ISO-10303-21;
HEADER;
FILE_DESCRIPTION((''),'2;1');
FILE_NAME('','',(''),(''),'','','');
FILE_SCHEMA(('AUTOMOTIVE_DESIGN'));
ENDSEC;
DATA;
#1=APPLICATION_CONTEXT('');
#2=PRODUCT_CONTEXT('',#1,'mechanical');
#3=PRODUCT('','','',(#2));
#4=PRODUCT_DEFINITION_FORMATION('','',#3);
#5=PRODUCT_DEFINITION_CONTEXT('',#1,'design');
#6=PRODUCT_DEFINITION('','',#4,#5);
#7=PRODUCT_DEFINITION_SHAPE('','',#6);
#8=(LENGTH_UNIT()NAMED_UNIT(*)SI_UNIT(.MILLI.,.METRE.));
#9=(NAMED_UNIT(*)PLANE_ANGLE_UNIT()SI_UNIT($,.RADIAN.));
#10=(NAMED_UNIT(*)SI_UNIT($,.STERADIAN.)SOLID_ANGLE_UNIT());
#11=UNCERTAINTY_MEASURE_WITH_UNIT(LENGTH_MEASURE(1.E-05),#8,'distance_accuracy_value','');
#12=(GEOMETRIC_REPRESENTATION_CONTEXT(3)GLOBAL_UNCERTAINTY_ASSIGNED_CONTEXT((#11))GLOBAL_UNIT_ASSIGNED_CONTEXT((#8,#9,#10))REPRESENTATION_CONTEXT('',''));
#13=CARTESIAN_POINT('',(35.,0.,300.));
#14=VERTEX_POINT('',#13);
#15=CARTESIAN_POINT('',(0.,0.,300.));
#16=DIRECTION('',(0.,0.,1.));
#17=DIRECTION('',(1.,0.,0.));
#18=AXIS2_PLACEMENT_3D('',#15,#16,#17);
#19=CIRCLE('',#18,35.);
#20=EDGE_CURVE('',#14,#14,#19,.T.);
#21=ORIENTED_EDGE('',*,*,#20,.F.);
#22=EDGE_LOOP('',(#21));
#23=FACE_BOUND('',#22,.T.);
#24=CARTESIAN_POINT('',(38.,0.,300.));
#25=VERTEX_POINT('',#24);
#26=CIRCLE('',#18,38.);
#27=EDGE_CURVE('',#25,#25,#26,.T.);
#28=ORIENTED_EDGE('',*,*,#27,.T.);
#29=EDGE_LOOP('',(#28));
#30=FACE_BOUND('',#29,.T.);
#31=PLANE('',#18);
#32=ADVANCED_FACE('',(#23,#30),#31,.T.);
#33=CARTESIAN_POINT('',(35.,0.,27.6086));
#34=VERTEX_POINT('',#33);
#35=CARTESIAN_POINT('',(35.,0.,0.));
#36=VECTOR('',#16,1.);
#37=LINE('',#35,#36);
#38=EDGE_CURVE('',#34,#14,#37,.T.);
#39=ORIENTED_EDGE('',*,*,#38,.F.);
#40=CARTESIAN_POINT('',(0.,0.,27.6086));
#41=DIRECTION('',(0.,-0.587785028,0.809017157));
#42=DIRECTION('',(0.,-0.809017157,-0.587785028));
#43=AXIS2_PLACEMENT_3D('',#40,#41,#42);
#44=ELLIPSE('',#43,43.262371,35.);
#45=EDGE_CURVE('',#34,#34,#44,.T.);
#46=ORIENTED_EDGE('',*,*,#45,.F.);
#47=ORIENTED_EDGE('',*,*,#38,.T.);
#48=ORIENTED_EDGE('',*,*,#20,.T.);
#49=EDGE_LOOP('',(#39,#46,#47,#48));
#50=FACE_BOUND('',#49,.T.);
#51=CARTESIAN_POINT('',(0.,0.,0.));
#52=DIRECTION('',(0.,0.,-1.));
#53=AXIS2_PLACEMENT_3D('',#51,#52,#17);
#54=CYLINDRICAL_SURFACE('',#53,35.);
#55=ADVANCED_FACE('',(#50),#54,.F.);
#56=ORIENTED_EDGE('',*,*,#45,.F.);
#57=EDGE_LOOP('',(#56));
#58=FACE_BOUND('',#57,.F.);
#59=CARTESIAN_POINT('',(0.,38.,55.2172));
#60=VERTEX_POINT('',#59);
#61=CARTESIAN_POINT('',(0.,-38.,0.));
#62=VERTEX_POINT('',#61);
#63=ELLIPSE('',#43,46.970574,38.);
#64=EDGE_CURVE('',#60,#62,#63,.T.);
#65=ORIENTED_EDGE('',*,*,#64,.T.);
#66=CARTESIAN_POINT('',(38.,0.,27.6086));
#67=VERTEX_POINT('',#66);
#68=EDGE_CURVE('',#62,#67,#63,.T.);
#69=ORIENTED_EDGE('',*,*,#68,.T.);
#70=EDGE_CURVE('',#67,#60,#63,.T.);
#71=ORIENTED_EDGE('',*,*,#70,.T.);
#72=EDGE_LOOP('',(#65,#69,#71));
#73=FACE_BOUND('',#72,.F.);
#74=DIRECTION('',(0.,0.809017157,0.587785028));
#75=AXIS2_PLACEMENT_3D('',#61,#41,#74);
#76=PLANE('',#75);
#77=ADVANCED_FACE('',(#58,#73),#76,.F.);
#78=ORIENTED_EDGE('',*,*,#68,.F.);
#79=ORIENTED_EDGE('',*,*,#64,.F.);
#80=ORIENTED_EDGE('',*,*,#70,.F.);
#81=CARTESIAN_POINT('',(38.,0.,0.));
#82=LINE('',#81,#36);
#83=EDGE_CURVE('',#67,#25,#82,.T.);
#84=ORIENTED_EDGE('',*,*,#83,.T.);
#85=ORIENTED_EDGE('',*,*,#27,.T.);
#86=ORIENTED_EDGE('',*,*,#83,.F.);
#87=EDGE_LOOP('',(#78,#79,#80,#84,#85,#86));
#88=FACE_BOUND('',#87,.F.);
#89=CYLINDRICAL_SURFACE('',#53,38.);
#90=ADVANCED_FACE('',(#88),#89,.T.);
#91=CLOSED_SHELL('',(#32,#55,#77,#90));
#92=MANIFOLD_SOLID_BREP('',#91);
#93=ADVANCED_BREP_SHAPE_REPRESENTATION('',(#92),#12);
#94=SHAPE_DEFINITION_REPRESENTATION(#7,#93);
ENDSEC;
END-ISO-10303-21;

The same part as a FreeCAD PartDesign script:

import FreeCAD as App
import Part
import Sketcher
Q = App.Units.Quantity

doc = App.newDocument("Part")
params = doc.addObject("Spreadsheet::Sheet", "Params")
for row, (alias, value) in enumerate([
    ("sketch1_diameter", "76 mm"),
    ("sketch1_diameter2", "70 mm"),
    ("pad1_length", "300 mm"),
    ("sketch2_width", "76 mm"),
    ("pocket1_length", "300 mm"),
], start=1):
    params.set(f"A{row}", alias)
    params.set(f"B{row}", "=" + value)
    params.setAlias(f"B{row}", alias)

body = doc.addObject("PartDesign::Body", "Body")

# Sketch on XY plane
sketch1 = body.newObject("Sketcher::SketchObject", "Sketch")
sketch1.AttachmentSupport = (doc.getObject("XY_Plane"), [""])
sketch1.MapMode = "FlatFace"
sketch1.addGeometry(Part.Circle(App.Vector(0, 0, 0), App.Vector(0, 0, 1), 38), False)
sketch1.addGeometry(Part.Circle(App.Vector(0, 0, 0), App.Vector(0, 0, 1), 35), False)
sketch1.addConstraint(Sketcher.Constraint("Coincident", 0, 3, -1, 1))
sketch1.addConstraint(Sketcher.Constraint("Coincident", 1, 3, -1, 1))
sketch1.addConstraint(Sketcher.Constraint("Diameter", 0, Q("76 mm")))
sketch1.addConstraint(Sketcher.Constraint("Diameter", 1, Q("70 mm")))
sketch1.setExpression("Constraints[2]", "Params.sketch1_diameter")
sketch1.setExpression("Constraints[3]", "Params.sketch1_diameter2")
pad1 = body.newObject("PartDesign::Pad", "Pad")
pad1.Profile = sketch1
pad1.setExpression("Length", "Params.pad1_length")

# Sketch on YZ plane
sketch2 = body.newObject("Sketcher::SketchObject", "Sketch001")
sketch2.AttachmentSupport = (doc.getObject("YZ_Plane"), [""])
sketch2.MapMode = "FlatFace"
sketch2.addGeometry(Part.LineSegment(App.Vector(-38, 0, 0), App.Vector(38, 0, 0)), False)
sketch2.addGeometry(Part.LineSegment(App.Vector(38, 0, 0), App.Vector(38, 55, 0)), False)
sketch2.addGeometry(Part.LineSegment(App.Vector(38, 55, 0), App.Vector(-38, 0, 0)), False)
sketch2.addConstraint(Sketcher.Constraint("Coincident", 0, 2, 1, 1))
sketch2.addConstraint(Sketcher.Constraint("Coincident", 1, 2, 2, 1))
sketch2.addConstraint(Sketcher.Constraint("Coincident", 2, 2, 0, 1))
sketch2.addConstraint(Sketcher.Constraint("Horizontal", 0))
sketch2.addConstraint(Sketcher.Constraint("Vertical", 1))
sketch2.addConstraint(Sketcher.Constraint("Symmetric", 0, 2, 2, 2, -1, 1))
sketch2.addConstraint(Sketcher.Constraint("DistanceX", 0, 1, 0, 2, Q("76 mm")))
sketch2.addConstraint(Sketcher.Constraint("Angle", 2, Q("-144 deg")))
sketch2.setExpression("Constraints[6]", "Params.sketch2_width")
pocket1 = body.newObject("PartDesign::Pocket", "Pocket")
pocket1.Profile = sketch2
pocket1.setExpression("Length", "Params.pocket1_length")
pocket1.Midplane = True

doc.recompute()
